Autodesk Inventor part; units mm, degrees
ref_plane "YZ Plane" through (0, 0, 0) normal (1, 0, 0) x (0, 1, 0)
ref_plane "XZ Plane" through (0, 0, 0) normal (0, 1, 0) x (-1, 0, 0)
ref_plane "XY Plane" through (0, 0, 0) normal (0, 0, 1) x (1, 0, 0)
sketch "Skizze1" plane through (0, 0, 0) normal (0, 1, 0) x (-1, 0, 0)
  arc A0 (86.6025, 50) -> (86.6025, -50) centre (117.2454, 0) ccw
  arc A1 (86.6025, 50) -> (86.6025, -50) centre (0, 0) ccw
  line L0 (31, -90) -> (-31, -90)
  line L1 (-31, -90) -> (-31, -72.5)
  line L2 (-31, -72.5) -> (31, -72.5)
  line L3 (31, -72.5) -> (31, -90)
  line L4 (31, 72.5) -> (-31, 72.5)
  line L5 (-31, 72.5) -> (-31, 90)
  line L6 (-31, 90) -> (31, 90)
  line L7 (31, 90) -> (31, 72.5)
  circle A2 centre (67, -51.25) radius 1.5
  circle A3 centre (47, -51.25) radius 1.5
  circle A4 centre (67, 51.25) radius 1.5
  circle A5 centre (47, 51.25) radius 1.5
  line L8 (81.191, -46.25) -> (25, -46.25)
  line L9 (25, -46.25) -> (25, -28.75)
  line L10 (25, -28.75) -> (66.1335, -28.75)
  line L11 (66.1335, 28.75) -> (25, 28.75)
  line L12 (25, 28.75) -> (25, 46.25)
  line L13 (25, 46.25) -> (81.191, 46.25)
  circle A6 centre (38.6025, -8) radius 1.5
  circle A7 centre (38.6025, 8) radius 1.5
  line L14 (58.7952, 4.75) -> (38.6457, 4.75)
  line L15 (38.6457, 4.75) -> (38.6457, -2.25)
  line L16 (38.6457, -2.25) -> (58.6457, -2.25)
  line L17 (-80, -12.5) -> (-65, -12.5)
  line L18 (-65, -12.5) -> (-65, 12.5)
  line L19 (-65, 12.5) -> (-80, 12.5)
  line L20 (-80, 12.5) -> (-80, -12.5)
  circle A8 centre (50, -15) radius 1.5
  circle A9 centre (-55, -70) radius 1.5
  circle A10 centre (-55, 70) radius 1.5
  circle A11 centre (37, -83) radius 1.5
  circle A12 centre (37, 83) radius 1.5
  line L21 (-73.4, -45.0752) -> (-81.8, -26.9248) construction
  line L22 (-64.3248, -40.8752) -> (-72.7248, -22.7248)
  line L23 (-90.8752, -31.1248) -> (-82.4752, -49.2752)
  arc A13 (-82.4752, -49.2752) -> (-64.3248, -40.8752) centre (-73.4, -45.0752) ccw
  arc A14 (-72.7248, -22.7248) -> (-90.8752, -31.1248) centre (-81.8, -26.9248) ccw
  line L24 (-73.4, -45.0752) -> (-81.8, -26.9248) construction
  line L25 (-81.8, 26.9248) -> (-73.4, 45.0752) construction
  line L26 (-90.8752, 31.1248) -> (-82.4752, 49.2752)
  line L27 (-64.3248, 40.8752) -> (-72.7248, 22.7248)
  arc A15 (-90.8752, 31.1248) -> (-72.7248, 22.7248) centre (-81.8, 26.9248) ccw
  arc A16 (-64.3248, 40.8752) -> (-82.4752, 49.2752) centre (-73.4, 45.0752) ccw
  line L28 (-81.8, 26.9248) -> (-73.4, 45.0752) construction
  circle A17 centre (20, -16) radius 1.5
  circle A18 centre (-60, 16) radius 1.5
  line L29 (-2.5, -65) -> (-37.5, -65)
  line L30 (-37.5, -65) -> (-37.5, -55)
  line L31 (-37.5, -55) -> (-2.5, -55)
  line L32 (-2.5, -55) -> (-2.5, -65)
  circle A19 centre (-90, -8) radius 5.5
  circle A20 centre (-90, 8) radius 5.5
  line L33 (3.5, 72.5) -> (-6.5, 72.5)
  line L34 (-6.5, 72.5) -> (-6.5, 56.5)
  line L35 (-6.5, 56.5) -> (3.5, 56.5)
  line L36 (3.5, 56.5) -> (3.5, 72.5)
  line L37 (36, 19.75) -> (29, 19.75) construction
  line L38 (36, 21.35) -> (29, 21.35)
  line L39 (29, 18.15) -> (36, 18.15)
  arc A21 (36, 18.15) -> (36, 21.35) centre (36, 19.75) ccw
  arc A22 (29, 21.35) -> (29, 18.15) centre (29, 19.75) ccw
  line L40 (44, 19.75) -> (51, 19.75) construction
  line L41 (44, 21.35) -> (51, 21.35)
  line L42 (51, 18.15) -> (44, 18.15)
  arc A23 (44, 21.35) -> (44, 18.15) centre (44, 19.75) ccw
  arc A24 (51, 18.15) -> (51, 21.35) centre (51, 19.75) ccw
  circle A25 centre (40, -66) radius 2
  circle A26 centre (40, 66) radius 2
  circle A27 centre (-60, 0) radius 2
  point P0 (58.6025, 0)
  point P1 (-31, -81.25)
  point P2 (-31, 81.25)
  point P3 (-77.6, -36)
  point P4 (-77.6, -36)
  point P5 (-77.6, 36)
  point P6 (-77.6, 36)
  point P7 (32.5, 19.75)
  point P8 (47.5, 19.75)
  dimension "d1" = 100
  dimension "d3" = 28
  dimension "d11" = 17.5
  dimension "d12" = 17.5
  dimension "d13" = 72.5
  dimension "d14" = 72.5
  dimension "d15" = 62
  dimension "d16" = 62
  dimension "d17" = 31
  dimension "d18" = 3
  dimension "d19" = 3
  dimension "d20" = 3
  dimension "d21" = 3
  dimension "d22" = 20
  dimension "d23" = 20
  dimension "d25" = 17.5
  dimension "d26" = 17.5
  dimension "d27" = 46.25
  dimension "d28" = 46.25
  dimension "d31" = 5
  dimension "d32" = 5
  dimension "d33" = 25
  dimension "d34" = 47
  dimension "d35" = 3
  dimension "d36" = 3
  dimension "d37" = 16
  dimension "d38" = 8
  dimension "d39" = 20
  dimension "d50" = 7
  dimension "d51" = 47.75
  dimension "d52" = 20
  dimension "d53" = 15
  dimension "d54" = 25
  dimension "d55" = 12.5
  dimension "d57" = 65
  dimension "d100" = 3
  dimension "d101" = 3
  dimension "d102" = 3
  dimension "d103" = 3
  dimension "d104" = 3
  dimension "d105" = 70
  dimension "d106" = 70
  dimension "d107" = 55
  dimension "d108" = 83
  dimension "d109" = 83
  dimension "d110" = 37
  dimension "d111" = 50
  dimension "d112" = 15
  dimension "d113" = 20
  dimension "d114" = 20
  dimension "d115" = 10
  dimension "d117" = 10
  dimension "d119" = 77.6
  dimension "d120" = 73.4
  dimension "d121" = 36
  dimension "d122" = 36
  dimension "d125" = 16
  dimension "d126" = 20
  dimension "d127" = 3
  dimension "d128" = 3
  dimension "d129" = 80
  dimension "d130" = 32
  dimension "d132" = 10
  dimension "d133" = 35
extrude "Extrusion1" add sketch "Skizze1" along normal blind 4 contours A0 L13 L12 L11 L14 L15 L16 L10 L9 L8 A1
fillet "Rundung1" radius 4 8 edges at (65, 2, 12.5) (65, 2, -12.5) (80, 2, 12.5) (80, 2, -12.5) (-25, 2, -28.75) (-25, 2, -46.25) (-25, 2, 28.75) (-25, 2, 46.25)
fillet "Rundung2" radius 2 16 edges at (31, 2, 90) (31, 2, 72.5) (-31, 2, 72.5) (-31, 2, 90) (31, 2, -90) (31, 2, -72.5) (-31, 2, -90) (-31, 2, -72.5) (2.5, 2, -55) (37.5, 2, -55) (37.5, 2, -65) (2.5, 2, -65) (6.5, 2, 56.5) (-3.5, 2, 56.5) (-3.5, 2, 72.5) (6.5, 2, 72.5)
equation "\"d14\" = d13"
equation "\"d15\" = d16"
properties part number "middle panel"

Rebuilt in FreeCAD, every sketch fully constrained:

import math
import FreeCAD as App
import Part
import Sketcher

V = App.Vector
Q = App.Units.Quantity


def edges_at(feature, points):
    """Names of the edges that pass closest to the given points."""
    edges = feature.Shape.Edges
    near = lambda p: min(range(len(edges)), key=lambda i: edges[i].distToShape(Part.Vertex(*p))[0])
    return sorted({f"Edge{near(p) + 1}" for p in points})


def add_polygon(sketch, points):
    """Adds a closed chain of lines whose ends are joined by coincident constraints."""
    first, n = sketch.GeometryCount, len(points)
    for a, b in zip(points, points[1:] + points[:1]):
        sketch.addGeometry(Part.LineSegment(App.Vector(*a, 0), App.Vector(*b, 0)), False)
    for i in range(n):
        sketch.addConstraint(Sketcher.Constraint("Coincident", first + i, 2, first + (i + 1) % n, 1))

doc = App.newDocument("Part")
body = doc.addObject("PartDesign::Body", "Body")

# Sketch on XZ plane
sketch1 = doc.addObject("Sketcher::SketchObject", "Sketch")
body.addObject(sketch1)
sketch1.AttachmentSupport = (doc.XZ_Plane, [""])
sketch1.MapMode = "FlatFace"
sketch1.addGeometry(Part.ArcOfCircle(Part.Circle(V(-117.2, 0, 0), V(0, 0, 1), 58.6), math.radians(52.06), math.radians(58.5)), False)  # 0
sketch1.addGeometry(Part.ArcOfCircle(Part.Circle(V(0, 0, 0), V(0, 0, 1), 100), math.radians(-150), math.radians(150)), False)  # 1
sketch1.addGeometry(Part.ArcOfCircle(Part.Circle(V(-117.2, 0, 0), V(0, 0, 1), 58.6), math.radians(-58.5), math.radians(-52.06)), False)  # 2
sketch1.addGeometry(Part.LineSegment(V(-81.2, -46.2, 0), V(-25, -46.2, 0)), False)  # 3
sketch1.addGeometry(Part.LineSegment(V(-25, -46.2, 0), V(-25, -28.8, 0)), False)  # 4
sketch1.addGeometry(Part.LineSegment(V(-25, -28.8, 0), V(-66.1, -28.8, 0)), False)  # 5
sketch1.addGeometry(Part.ArcOfCircle(Part.Circle(V(-117.2, 0, 0), V(0, 0, 1), 58.6), math.radians(-29), math.radians(-2)), False)  # 6
sketch1.addGeometry(Part.LineSegment(V(-58.6, -2.2, 0), V(-38.6, -2.2, 0)), False)  # 7
sketch1.addGeometry(Part.LineSegment(V(-38.6, -2.2, 0), V(-38.6, 4.8, 0)), False)  # 8
sketch1.addGeometry(Part.LineSegment(V(-38.6, 4.8, 0), V(-58.8, 4.8, 0)), False)  # 9
sketch1.addGeometry(Part.ArcOfCircle(Part.Circle(V(-117.2, 0, 0), V(0, 0, 1), 58.6), math.radians(5), math.radians(29)), False)  # 10
sketch1.addGeometry(Part.LineSegment(V(-66.1, 28.8, 0), V(-25, 28.8, 0)), False)  # 11
sketch1.addGeometry(Part.LineSegment(V(-25, 28.8, 0), V(-25, 46.2, 0)), False)  # 12
sketch1.addGeometry(Part.LineSegment(V(-25, 46.2, 0), V(-81.2, 46.2, 0)), False)  # 13
sketch1.addGeometry(Part.Circle(V(55, -70, 0), V(0, 0, 1), 1.5), False)  # 14
add_polygon(sketch1, [(2.5, -55), (2.5, -65), (37.5, -65), (37.5, -55)])  # lines 15-18
sketch1.addGeometry(Part.LineSegment(V(72.7, -22.7, 0), V(64.3, -40.9, 0)), False)  # 19
sketch1.addGeometry(Part.ArcOfCircle(Part.Circle(V(73.4, -45.1, 0), V(0, 0, 1), 10), math.radians(155), math.radians(335)), False)  # 20
sketch1.addGeometry(Part.LineSegment(V(82.5, -49.3, 0), V(90.9, -31.1, 0)), False)  # 21
sketch1.addGeometry(Part.ArcOfCircle(Part.Circle(V(81.8, -26.9, 0), V(0, 0, 1), 10), math.radians(-25), math.radians(155)), False)  # 22
sketch1.addGeometry(Part.Circle(V(90, -8, 0), V(0, 0, 1), 5.5), False)  # 23
add_polygon(sketch1, [(65, -12.5), (80, -12.5), (80, 12.5), (65, 12.5)])  # lines 24-27
sketch1.addGeometry(Part.Circle(V(60, 0, 0), V(0, 0, 1), 2), False)  # 28
add_polygon(sketch1, [(-31, -72.5), (-31, -90), (31, -90), (31, -72.5)])  # lines 29-32
sketch1.addGeometry(Part.Circle(V(-37, -83, 0), V(0, 0, 1), 1.5), False)  # 33
sketch1.addGeometry(Part.Circle(V(-40, -66, 0), V(0, 0, 1), 2), False)  # 34
sketch1.addGeometry(Part.Circle(V(-47, -51.2, 0), V(0, 0, 1), 1.5), False)  # 35
sketch1.addGeometry(Part.Circle(V(-67, -51.2, 0), V(0, 0, 1), 1.5), False)  # 36
sketch1.addGeometry(Part.Circle(V(-20, -16, 0), V(0, 0, 1), 1.5), False)  # 37
sketch1.addGeometry(Part.Circle(V(-38.6, -8, 0), V(0, 0, 1), 1.5), False)  # 38
sketch1.addGeometry(Part.Circle(V(-50, -15, 0), V(0, 0, 1), 1.5), False)  # 39
sketch1.addGeometry(Part.Circle(V(90, 8, 0), V(0, 0, 1), 5.5), False)  # 40
sketch1.addGeometry(Part.Circle(V(60, 16, 0), V(0, 0, 1), 1.5), False)  # 41
sketch1.addGeometry(Part.ArcOfCircle(Part.Circle(V(81.8, 26.9, 0), V(0, 0, 1), 10), math.radians(-155), math.radians(25)), False)  # 42
sketch1.addGeometry(Part.LineSegment(V(90.9, 31.1, 0), V(82.5, 49.3, 0)), False)  # 43
sketch1.addGeometry(Part.ArcOfCircle(Part.Circle(V(73.4, 45.1, 0), V(0, 0, 1), 10), math.radians(25), math.radians(205)), False)  # 44
sketch1.addGeometry(Part.LineSegment(V(64.3, 40.9, 0), V(72.7, 22.7, 0)), False)  # 45
sketch1.addGeometry(Part.Circle(V(55, 70, 0), V(0, 0, 1), 1.5), False)  # 46
sketch1.addGeometry(Part.Circle(V(-38.6, 8, 0), V(0, 0, 1), 1.5), False)  # 47
sketch1.addGeometry(Part.LineSegment(V(-29, 21.4, 0), V(-36, 21.4, 0)), False)  # 48
sketch1.addGeometry(Part.ArcOfCircle(Part.Circle(V(-36, 19.8, 0), V(0, 0, 1), 1.6), math.radians(90), math.radians(270)), False)  # 49
sketch1.addGeometry(Part.LineSegment(V(-36, 18.1, 0), V(-29, 18.1, 0)), False)  # 50
sketch1.addGeometry(Part.ArcOfCircle(Part.Circle(V(-29, 19.8, 0), V(0, 0, 1), 1.6), math.radians(-90), math.radians(90)), False)  # 51
sketch1.addGeometry(Part.ArcOfCircle(Part.Circle(V(-44, 19.8, 0), V(0, 0, 1), 1.6), math.radians(-90), math.radians(90)), False)  # 52
sketch1.addGeometry(Part.LineSegment(V(-44, 21.4, 0), V(-51, 21.4, 0)), False)  # 53
sketch1.addGeometry(Part.ArcOfCircle(Part.Circle(V(-51, 19.8, 0), V(0, 0, 1), 1.6), math.radians(90), math.radians(270)), False)  # 54
sketch1.addGeometry(Part.LineSegment(V(-51, 18.1, 0), V(-44, 18.1, 0)), False)  # 55
add_polygon(sketch1, [(-31, 90), (-31, 72.5), (-3.5, 72.5), (-3.5, 56.5), (6.5, 56.5), (6.5, 72.5), (31, 72.5), (31, 90)])  # lines 56-63
sketch1.addGeometry(Part.Circle(V(-37, 83, 0), V(0, 0, 1), 1.5), False)  # 64
sketch1.addGeometry(Part.Circle(V(-47, 51.2, 0), V(0, 0, 1), 1.5), False)  # 65
sketch1.addGeometry(Part.Circle(V(-40, 66, 0), V(0, 0, 1), 2), False)  # 66
sketch1.addGeometry(Part.Circle(V(-67, 51.2, 0), V(0, 0, 1), 1.5), False)  # 67
sketch1.addConstraint([
    Sketcher.Constraint("Coincident", 0, 2, 1, 2),
    Sketcher.Constraint("Coincident", 1, 1, 2, 1),
    Sketcher.Constraint("Coincident", 2, 2, 3, 1),
    Sketcher.Constraint("Coincident", 3, 2, 4, 1),
    Sketcher.Constraint("Coincident", 4, 2, 5, 1),
    Sketcher.Constraint("Coincident", 5, 2, 6, 1),
    Sketcher.Constraint("Coincident", 6, 2, 7, 1),
    Sketcher.Constraint("Coincident", 7, 2, 8, 1),
    Sketcher.Constraint("Coincident", 8, 2, 9, 1),
    Sketcher.Constraint("Coincident", 9, 2, 10, 1),
    Sketcher.Constraint("Coincident", 10, 2, 11, 1),
    Sketcher.Constraint("Coincident", 11, 2, 12, 1),
    Sketcher.Constraint("Coincident", 12, 2, 13, 1),
    Sketcher.Constraint("Coincident", 13, 2, 0, 1),
    Sketcher.Constraint("Tangent", 19, 2, 20, 1),
    Sketcher.Constraint("Tangent", 20, 2, 21, 1),
    Sketcher.Constraint("Tangent", 21, 2, 22, 1),
    Sketcher.Constraint("Tangent", 22, 2, 19, 1),
    Sketcher.Constraint("Tangent", 42, 2, 43, 1),
    Sketcher.Constraint("Tangent", 43, 2, 44, 1),
    Sketcher.Constraint("Tangent", 44, 2, 45, 1),
    Sketcher.Constraint("Tangent", 45, 2, 42, 1),
    Sketcher.Constraint("Tangent", 48, 2, 49, 1),
    Sketcher.Constraint("Tangent", 49, 2, 50, 1),
    Sketcher.Constraint("Tangent", 50, 2, 51, 1),
    Sketcher.Constraint("Tangent", 51, 2, 48, 1),
    Sketcher.Constraint("Tangent", 52, 2, 53, 1),
    Sketcher.Constraint("Tangent", 53, 2, 54, 1),
    Sketcher.Constraint("Tangent", 54, 2, 55, 1),
    Sketcher.Constraint("Tangent", 55, 2, 52, 1),
    Sketcher.Constraint("Horizontal", 3),
    Sketcher.Constraint("Vertical", 4),
    Sketcher.Constraint("Horizontal", 5),
    Sketcher.Constraint("Horizontal", 7),
    Sketcher.Constraint("Vertical", 8),
    Sketcher.Constraint("Horizontal", 9),
    Sketcher.Constraint("Horizontal", 11),
    Sketcher.Constraint("Vertical", 12),
    Sketcher.Constraint("Horizontal", 13),
    Sketcher.Constraint("Vertical", 15),
    Sketcher.Constraint("Horizontal", 16),
    Sketcher.Constraint("Vertical", 17),
    Sketcher.Constraint("Horizontal", 18),
    Sketcher.Constraint("Horizontal", 24),
    Sketcher.Constraint("Vertical", 25),
    Sketcher.Constraint("Horizontal", 26),
    Sketcher.Constraint("Vertical", 27),
    Sketcher.Constraint("Vertical", 29),
    Sketcher.Constraint("Horizontal", 30),
    Sketcher.Constraint("Vertical", 31),
    Sketcher.Constraint("Horizontal", 32),
    Sketcher.Constraint("Horizontal", 48),
    Sketcher.Constraint("Horizontal", 50),
    Sketcher.Constraint("Horizontal", 53),
    Sketcher.Constraint("Horizontal", 55),
    Sketcher.Constraint("Vertical", 56),
    Sketcher.Constraint("Horizontal", 57),
    Sketcher.Constraint("Vertical", 58),
    Sketcher.Constraint("Horizontal", 59),
    Sketcher.Constraint("Vertical", 60),
    Sketcher.Constraint("Horizontal", 61),
    Sketcher.Constraint("Vertical", 62),
    Sketcher.Constraint("Horizontal", 63),
    Sketcher.Constraint("Coincident", 1, 3, -1, 1),
    Sketcher.Constraint("Coincident", 2, 3, 0, 3),
    Sketcher.Constraint("Coincident", 6, 3, 0, 3),
    Sketcher.Constraint("Coincident", 10, 3, 0, 3),
    Sketcher.Constraint("Equal", 0, 2),
    Sketcher.Constraint("Equal", 2, 6),
    Sketcher.Constraint("Equal", 6, 10),
    Sketcher.Constraint("Equal", 20, 22),
    Sketcher.Constraint("Equal", 14, 33),
    Sketcher.Constraint("Equal", 28, 34),
    Sketcher.Constraint("Equal", 33, 35),
    Sketcher.Constraint("Equal", 35, 36),
    Sketcher.Constraint("Equal", 36, 37),
    Sketcher.Constraint("Equal", 37, 38),
    Sketcher.Constraint("Equal", 38, 39),
    Sketcher.Constraint("Equal", 23, 40),
    Sketcher.Constraint("Equal", 39, 41),
    Sketcher.Constraint("Equal", 22, 42),
    Sketcher.Constraint("Equal", 42, 44),
    Sketcher.Constraint("Equal", 41, 46),
    Sketcher.Constraint("Equal", 46, 47),
    Sketcher.Constraint("Equal", 51, 52),
    Sketcher.Constraint("Equal", 47, 64),
    Sketcher.Constraint("Equal", 64, 65),
    Sketcher.Constraint("Equal", 34, 66),
    Sketcher.Constraint("Equal", 65, 67),
    Sketcher.Constraint("Symmetric", 31, 2, 56, 2, -1, 1),
    Sketcher.Constraint("Symmetric", 32, 2, 61, 2, -1, 1),
    Sketcher.Constraint("Symmetric", 23, 3, 40, 3, -1),
    Sketcher.Constraint("Symmetric", 22, 3, 42, 3, -1),
    Sketcher.Constraint("Symmetric", 20, 3, 44, 3, -1),
    Sketcher.Constraint("Symmetric", 14, 3, 46, 3, -1),
    Sketcher.Constraint("Symmetric", 38, 3, 47, 3, -1),
    Sketcher.Constraint("Symmetric", 33, 3, 64, 3, -1),
    Sketcher.Constraint("Symmetric", 35, 3, 65, 3, -1),
    Sketcher.Constraint("Symmetric", 34, 3, 66, 3, -1),
    Sketcher.Constraint("Symmetric", 36, 3, 67, 3, -1),
    Sketcher.Constraint("Symmetric", 5, 2, 10, 2, -1),
    Sketcher.Constraint("Symmetric", 3, 2, 12, 2, -1),
    Sketcher.Constraint("Symmetric", 30, 2, 62, 2, -1),
    Sketcher.Constraint("PointOnObject", 28, 3, -1),
    Sketcher.Constraint("Horizontal", 35, 3, 36, 3),
    Sketcher.Constraint("Horizontal", 23, 3, 38, 3),
    Sketcher.Constraint("Horizontal", 51, 3, 52, 3),
    Sketcher.Constraint("Vertical", 28, 3, 41, 3),
    Sketcher.Constraint("Equal", 50, 53),
    Sketcher.Constraint("Equal", 55, 8),
    Sketcher.Constraint("Equal", 59, 15),
    Sketcher.Constraint("Equal", 12, 29),
    Sketcher.Constraint("Diameter", 14, Q("3 mm")),
    Sketcher.Constraint("Radius", 1, Q("100 mm")),
    Sketcher.Constraint("Radius", 20, Q("10 mm")),
    Sketcher.Constraint("DistanceX", 7, 1, 7, 2, Q("20 mm")),
    Sketcher.Constraint("DistanceX", 16, 1, 16, 2, Q("35 mm")),
    Sketcher.Constraint("DistanceX", 24, 1, 24, 2, Q("15 mm")),
    Sketcher.Constraint("DistanceX", 30, 1, 30, 2, Q("62 mm")),
    Sketcher.Constraint("DistanceX", 48, 2, 48, 1, Q("7 mm")),
    Sketcher.Constraint("DistanceX", 59, 1, 59, 2, Q("10 mm")),
    Sketcher.Constraint("DistanceY", 25, 1, 25, 2, Q("25 mm")),
    Sketcher.Constraint("DistanceY", 58, 2, 58, 1, Q("16 mm")),
    Sketcher.Constraint("Distance", 19, Q("20 mm")),
    Sketcher.Constraint("Diameter", 23, Q("11 mm")),
    Sketcher.Constraint("Diameter", 28, Q("4 mm")),
    Sketcher.Constraint("DistanceY", 4, 1, 4, 2, Q("17.5 mm")),
    Sketcher.Constraint("DistanceX", -1, 1, 14, 3, Q("55 mm")),
    Sketcher.Constraint("DistanceY", 14, 3, -1, 1, Q("70 mm")),
    Sketcher.Constraint("DistanceY", 23, 3, -1, 1, Q("8 mm")),
    Sketcher.Constraint("DistanceX", 33, 3, -1, 1, Q("37 mm")),
    Sketcher.Constraint("DistanceY", 33, 3, -1, 1, Q("83 mm")),
    Sketcher.Constraint("DistanceX", 35, 3, -1, 1, Q("47 mm")),
    Sketcher.Constraint("DistanceX", 37, 3, -1, 1, Q("20 mm")),
    Sketcher.Constraint("DistanceY", 37, 3, -1, 1, Q("16 mm")),
    Sketcher.Constraint("DistanceX", 39, 3, -1, 1, Q("50 mm")),
    Sketcher.Constraint("DistanceY", 39, 3, -1, 1, Q("15 mm")),
    Sketcher.Constraint("DistanceY", -1, 1, 41, 3, Q("16 mm")),
    Sketcher.Constraint("DistanceX", 49, 3, -1, 1, Q("36 mm")),
    Sketcher.Constraint("DistanceY", -1, 1, 0, 2, Q("50 mm")),
    Sketcher.Constraint("DistanceX", 3, 2, -1, 1, Q("25 mm")),
    Sketcher.Constraint("DistanceY", 15, 2, -1, 1, Q("65 mm")),
    Sketcher.Constraint("DistanceX", -1, 1, 24, 2, Q("80 mm")),
    Sketcher.Constraint("DistanceX", -1, 1, 20, 3, Q("73.4 mm")),
    Sketcher.Constraint("DistanceY", 24, 2, -1, 1, Q("12.5 mm")),
    Sketcher.Constraint("DistanceY", 31, 2, -1, 1, Q("72.5 mm")),
    Sketcher.Constraint("Radius", 49, Q("1.6 mm")),
    Sketcher.Constraint("DistanceY", 2, 2, -1, 1, Q("46.25 mm")),
    Sketcher.Constraint("DistanceX", 57, 1, 57, 2, Q("27.5 mm")),
    Sketcher.Constraint("DistanceX", -1, 1, 23, 3, Q("90 mm")),
    Sketcher.Constraint("DistanceX", -1, 1, 28, 3, Q("60 mm")),
    Sketcher.Constraint("DistanceX", 34, 3, -1, 1, Q("40 mm")),
    Sketcher.Constraint("DistanceY", 34, 3, -1, 1, Q("66 mm")),
    Sketcher.Constraint("DistanceX", 36, 3, -1, 1, Q("67 mm")),
    Sketcher.Constraint("DistanceX", 52, 3, -1, 1, Q("44 mm")),
    Sketcher.Constraint("DistanceX", -1, 1, 22, 3, Q("81.8 mm")),
    Sketcher.Constraint("DistanceX", -1, 1, 15, 2, Q("2.5 mm")),
    Sketcher.Constraint("Radius", 0, Q("58.6429 mm")),
    Sketcher.Constraint("DistanceY", 35, 3, -1, 1, Q("51.25 mm")),
    Sketcher.Constraint("DistanceY", -1, 1, 49, 3, Q("19.75 mm")),
    Sketcher.Constraint("DistanceY", 6, 2, -1, 1, Q("2.25 mm")),
    Sketcher.Constraint("DistanceY", 20, 3, -1, 1, Q("45.0752 mm")),
    Sketcher.Constraint("DistanceX", 38, 3, -1, 1, Q("38.6025 mm")),
])
pad1 = doc.addObject("PartDesign::Pad", "Pad")
body.addObject(pad1)
pad1.Profile = sketch1
pad1.Length = 4
pad1.Reversed = True
doc.recompute()

fillet = doc.addObject("PartDesign::Fillet", "Fillet")
body.addObject(fillet)
fillet.Base = (pad1, edges_at(pad1, [
    (65, 2, 12.5),
    (65, 2, -12.5),
    (80, 2, 12.5),
    (80, 2, -12.5),
    (-25, 2, -28.75),
    (-25, 2, -46.25),
    (-25, 2, 28.75),
    (-25, 2, 46.25),
]))
fillet.Radius = 4
doc.recompute()

fillet2 = doc.addObject("PartDesign::Fillet", "Fillet001")
body.addObject(fillet2)
fillet2.Base = (fillet, edges_at(fillet, [
    (31, 2, 90),
    (31, 2, 72.5),
    (-31, 2, 72.5),
    (-31, 2, 90),
    (31, 2, -90),
    (31, 2, -72.5),
    (-31, 2, -90),
    (-31, 2, -72.5),
    (2.5, 2, -55),
    (37.5, 2, -55),
    (37.5, 2, -65),
    (2.5, 2, -65),
    (6.5, 2, 56.5),
    (-3.5, 2, 56.5),
    (-3.5, 2, 72.5),
    (6.5, 2, 72.5),
]))
fillet2.Radius = 2

doc.recompute()
